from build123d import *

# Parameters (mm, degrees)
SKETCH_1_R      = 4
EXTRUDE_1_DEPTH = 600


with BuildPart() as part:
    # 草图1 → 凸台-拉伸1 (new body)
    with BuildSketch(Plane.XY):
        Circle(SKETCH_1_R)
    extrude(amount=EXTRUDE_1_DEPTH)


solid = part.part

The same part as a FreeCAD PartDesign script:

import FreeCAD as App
import Part
import Sketcher

V = App.Vector
Q = App.Units.Quantity

doc = App.newDocument("Part")
params = doc.addObject("Spreadsheet::Sheet", "Params")
for row, (alias, value) in enumerate([
    ("sketch1_diameter", "8 mm"),
    ("pad1_length", "600 mm"),
], start=1):
    params.set(f"A{row}", alias)
    params.set(f"B{row}", "=" + value)
    params.setAlias(f"B{row}", alias)

body = doc.addObject("PartDesign::Body", "Body")

# Sketch on XY plane
sketch1 = body.newObject("Sketcher::SketchObject", "Sketch")
sketch1.AttachmentSupport = (doc.getObject("XY_Plane"), [""])
sketch1.MapMode = "FlatFace"
sketch1.addGeometry(Part.Circle(V(0, 0, 0), V(0, 0, 1), 4), False)
sketch1.addConstraint(Sketcher.Constraint("Coincident", 0, 3, -1, 1))
sketch1.addConstraint(Sketcher.Constraint("Diameter", 0, Q("8 mm")))
sketch1.setExpression("Constraints[1]", "Params.sketch1_diameter")
pad1 = body.newObject("PartDesign::Pad", "Pad")
pad1.Profile = sketch1
pad1.setExpression("Length", "Params.pad1_length")

doc.recompute()
